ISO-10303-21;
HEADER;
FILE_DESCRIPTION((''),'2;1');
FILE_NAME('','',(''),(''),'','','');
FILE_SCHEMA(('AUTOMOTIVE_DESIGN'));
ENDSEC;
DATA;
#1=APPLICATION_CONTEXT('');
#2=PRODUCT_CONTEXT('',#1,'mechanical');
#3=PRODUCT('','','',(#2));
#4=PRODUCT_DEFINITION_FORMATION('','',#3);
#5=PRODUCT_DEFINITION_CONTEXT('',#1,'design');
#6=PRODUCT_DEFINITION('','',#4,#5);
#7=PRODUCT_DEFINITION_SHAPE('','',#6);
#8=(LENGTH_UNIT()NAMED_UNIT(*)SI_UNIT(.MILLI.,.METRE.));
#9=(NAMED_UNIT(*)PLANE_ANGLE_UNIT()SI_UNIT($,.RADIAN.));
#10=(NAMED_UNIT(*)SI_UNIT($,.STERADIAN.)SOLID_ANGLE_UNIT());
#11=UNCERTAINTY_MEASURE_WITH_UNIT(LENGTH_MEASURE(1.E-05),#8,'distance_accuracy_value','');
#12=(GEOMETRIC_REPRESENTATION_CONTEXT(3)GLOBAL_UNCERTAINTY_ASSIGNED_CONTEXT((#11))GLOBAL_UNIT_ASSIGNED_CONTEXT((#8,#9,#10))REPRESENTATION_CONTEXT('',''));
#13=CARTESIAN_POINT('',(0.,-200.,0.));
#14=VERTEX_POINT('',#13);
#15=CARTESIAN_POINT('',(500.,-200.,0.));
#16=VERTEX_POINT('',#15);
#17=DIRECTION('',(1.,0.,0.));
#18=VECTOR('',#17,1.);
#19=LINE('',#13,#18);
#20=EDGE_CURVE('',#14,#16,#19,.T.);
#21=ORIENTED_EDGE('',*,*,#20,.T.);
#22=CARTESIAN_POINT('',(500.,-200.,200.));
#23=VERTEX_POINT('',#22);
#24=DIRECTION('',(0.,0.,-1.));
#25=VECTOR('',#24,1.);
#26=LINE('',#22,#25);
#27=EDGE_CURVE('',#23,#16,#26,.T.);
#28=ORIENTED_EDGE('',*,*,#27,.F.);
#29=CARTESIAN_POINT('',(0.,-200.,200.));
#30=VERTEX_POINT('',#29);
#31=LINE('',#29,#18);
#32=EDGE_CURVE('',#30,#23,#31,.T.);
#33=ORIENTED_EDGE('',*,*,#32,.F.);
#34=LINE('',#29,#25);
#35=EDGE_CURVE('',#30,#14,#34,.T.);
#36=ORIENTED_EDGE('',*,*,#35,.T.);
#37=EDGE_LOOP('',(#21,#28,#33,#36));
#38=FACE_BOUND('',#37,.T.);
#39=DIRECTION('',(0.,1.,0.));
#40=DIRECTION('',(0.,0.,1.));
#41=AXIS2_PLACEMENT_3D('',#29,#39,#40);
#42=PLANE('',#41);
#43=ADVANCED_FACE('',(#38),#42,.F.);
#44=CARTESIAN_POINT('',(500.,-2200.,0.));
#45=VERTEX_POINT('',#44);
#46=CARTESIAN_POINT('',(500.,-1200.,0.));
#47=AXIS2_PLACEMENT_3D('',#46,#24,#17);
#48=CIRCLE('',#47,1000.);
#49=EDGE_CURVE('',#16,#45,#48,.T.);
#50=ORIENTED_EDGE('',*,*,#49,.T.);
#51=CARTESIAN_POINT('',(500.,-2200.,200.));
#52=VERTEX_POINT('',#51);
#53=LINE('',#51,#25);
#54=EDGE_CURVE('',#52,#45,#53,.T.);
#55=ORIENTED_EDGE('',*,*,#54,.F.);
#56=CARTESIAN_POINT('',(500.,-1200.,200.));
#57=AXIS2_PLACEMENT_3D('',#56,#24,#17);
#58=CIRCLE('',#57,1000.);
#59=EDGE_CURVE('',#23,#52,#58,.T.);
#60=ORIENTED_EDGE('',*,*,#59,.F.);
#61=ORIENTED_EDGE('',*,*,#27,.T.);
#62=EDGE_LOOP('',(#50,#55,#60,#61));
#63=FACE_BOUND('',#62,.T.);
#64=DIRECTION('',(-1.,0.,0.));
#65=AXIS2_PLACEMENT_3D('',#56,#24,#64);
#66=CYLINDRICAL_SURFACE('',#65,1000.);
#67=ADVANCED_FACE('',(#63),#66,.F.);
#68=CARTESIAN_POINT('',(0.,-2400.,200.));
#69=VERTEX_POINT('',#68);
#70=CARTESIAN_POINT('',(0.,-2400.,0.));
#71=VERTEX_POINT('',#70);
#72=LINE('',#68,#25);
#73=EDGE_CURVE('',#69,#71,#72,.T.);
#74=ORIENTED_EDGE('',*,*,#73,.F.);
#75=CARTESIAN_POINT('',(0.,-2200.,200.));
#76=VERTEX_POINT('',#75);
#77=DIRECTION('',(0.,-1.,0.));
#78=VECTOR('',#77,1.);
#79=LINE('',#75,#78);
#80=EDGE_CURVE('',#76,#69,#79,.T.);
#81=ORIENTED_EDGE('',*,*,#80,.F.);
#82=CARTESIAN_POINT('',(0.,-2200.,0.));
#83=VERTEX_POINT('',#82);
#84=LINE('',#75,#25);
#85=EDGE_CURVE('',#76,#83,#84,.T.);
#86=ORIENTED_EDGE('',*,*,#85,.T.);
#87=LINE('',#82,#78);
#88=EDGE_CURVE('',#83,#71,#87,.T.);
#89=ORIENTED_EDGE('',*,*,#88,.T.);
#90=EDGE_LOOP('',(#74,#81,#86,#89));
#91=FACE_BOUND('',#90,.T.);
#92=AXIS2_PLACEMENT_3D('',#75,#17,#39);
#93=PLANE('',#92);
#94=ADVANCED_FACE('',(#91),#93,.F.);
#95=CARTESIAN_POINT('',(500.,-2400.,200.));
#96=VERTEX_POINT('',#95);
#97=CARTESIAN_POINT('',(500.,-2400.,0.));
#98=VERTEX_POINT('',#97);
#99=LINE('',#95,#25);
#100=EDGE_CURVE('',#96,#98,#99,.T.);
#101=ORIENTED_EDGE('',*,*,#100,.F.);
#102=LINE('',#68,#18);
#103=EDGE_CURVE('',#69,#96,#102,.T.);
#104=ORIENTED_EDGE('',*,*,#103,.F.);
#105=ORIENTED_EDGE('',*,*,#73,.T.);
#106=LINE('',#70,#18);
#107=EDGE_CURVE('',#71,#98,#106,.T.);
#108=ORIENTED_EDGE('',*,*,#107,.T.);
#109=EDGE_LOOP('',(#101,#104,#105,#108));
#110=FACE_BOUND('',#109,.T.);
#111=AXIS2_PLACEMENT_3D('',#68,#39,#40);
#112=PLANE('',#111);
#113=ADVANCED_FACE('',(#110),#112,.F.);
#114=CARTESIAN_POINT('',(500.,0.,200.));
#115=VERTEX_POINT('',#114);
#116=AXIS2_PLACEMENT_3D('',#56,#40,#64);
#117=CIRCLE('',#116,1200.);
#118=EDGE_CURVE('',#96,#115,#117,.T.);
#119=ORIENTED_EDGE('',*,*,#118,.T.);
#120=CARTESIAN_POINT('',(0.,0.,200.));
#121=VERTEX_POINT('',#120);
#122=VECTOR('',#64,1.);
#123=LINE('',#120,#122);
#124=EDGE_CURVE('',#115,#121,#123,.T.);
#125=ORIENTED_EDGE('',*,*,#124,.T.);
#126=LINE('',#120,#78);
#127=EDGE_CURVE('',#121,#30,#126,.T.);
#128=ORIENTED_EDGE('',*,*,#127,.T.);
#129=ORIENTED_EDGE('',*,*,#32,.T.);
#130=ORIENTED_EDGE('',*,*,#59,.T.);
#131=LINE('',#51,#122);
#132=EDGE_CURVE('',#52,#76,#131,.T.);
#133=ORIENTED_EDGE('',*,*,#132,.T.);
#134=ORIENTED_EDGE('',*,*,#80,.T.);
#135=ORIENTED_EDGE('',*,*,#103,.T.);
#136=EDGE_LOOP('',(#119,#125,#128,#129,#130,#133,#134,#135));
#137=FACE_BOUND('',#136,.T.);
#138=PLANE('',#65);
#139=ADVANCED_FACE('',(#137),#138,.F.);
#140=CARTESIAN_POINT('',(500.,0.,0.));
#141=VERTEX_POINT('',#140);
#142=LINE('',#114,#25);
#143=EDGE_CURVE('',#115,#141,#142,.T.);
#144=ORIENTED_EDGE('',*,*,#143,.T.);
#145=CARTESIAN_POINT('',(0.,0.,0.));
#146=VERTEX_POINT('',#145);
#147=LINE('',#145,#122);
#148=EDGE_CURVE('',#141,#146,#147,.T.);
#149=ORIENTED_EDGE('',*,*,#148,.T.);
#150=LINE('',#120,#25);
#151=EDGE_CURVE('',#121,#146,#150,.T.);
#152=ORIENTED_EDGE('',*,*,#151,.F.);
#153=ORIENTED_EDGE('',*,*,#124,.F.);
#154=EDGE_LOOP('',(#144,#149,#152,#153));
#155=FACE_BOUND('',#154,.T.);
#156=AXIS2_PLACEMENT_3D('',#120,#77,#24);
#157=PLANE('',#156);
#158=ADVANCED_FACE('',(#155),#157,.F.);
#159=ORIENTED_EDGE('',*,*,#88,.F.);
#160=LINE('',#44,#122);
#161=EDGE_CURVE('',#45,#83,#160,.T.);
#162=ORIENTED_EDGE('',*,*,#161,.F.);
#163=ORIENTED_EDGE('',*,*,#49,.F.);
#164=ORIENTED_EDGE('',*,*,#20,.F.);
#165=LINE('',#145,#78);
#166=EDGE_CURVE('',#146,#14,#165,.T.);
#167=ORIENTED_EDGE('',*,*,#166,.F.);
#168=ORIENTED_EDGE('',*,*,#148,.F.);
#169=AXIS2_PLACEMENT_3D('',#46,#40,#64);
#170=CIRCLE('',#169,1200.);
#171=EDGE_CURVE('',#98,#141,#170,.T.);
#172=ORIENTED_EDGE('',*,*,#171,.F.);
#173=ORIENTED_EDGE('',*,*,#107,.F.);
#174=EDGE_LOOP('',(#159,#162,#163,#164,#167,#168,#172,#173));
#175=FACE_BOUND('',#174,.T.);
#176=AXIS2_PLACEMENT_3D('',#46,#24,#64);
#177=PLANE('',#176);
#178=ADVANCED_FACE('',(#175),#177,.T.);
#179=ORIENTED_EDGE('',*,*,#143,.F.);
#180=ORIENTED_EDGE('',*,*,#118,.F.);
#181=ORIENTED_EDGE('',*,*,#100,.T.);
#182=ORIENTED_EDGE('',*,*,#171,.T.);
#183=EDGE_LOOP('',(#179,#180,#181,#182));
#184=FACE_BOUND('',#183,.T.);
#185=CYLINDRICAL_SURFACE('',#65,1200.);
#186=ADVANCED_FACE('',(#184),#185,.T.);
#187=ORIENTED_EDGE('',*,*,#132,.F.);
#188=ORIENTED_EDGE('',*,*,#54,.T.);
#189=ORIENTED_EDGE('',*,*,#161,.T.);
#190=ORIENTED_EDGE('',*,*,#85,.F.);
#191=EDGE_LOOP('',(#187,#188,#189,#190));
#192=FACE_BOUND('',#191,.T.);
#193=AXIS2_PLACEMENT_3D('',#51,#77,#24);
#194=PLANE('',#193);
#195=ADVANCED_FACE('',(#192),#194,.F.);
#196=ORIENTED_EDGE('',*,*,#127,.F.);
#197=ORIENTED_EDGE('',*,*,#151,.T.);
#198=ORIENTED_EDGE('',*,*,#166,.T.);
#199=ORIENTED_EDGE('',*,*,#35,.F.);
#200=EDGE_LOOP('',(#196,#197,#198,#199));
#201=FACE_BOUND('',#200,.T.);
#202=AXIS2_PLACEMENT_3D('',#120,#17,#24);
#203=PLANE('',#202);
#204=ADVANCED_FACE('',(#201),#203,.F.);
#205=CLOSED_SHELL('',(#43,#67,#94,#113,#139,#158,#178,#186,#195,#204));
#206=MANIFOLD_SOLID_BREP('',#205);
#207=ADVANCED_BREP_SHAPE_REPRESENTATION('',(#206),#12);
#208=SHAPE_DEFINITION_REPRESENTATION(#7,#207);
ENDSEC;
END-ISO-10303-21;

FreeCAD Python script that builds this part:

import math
import FreeCAD as App
import Part
import Sketcher

V = App.Vector
Q = App.Units.Quantity

doc = App.newDocument("Part")
body = doc.addObject("PartDesign::Body", "Body")

# Sketch on XY plane
sketch1 = doc.addObject("Sketcher::SketchObject", "Sketch")
body.addObject(sketch1)
sketch1.AttachmentSupport = (doc.XY_Plane, [""])
sketch1.MapMode = "FlatFace"
sketch1.addGeometry([
    Part.LineSegment(V(0, 0, 0), V(0, -200, 0)),  # 0
    Part.LineSegment(V(0, -200, 0), V(500, -200, 0)),  # 1
    Part.ArcOfCircle(Part.Circle(V(500, -1200, 0), V(0, 0, 1), 1000), math.radians(-90), math.radians(90)),  # 2
    Part.LineSegment(V(500, -2200, 0), V(0, -2200, 0)),  # 3
    Part.LineSegment(V(0, -2200, 0), V(0, -2400, 0)),  # 4
    Part.LineSegment(V(0, -2400, 0), V(500, -2400, 0)),  # 5
    Part.ArcOfCircle(Part.Circle(V(500, -1200, 0), V(0, 0, 1), 1200), math.radians(-90), math.radians(90)),  # 6
    Part.LineSegment(V(500, 0, 0), V(0, 0, 0)),  # 7
], False)
sketch1.addConstraint([
    Sketcher.Constraint("Coincident", 0, 2, 1, 1),
    Sketcher.Constraint("Tangent", 1, 2, 2, 2),
    Sketcher.Constraint("Tangent", 2, 1, 3, 1),
    Sketcher.Constraint("Coincident", 3, 2, 4, 1),
    Sketcher.Constraint("Coincident", 4, 2, 5, 1),
    Sketcher.Constraint("Tangent", 5, 2, 6, 1),
    Sketcher.Constraint("Tangent", 6, 2, 7, 1),
    Sketcher.Constraint("Coincident", 7, 2, 0, 1),
    Sketcher.Constraint("Vertical", 0),
    Sketcher.Constraint("Horizontal", 1),
    Sketcher.Constraint("Horizontal", 3),
    Sketcher.Constraint("Vertical", 4),
    Sketcher.Constraint("Horizontal", 5),
    Sketcher.Constraint("Horizontal", 7),
    Sketcher.Constraint("Coincident", 7, 2, -1, 1),
    Sketcher.Constraint("Coincident", 6, 3, 2, 3),
    Sketcher.Constraint("PointOnObject", 3, 2, -2),
    Sketcher.Constraint("Radius", 2, Q("1000 mm")),
    Sketcher.Constraint("Radius", 6, Q("1200 mm")),
    Sketcher.Constraint("DistanceX", 1, 1, 1, 2, Q("500 mm")),
])
pad1 = doc.addObject("PartDesign::Pad", "Pad")
body.addObject(pad1)
pad1.Profile = sketch1
pad1.Length = 200

doc.recompute()
